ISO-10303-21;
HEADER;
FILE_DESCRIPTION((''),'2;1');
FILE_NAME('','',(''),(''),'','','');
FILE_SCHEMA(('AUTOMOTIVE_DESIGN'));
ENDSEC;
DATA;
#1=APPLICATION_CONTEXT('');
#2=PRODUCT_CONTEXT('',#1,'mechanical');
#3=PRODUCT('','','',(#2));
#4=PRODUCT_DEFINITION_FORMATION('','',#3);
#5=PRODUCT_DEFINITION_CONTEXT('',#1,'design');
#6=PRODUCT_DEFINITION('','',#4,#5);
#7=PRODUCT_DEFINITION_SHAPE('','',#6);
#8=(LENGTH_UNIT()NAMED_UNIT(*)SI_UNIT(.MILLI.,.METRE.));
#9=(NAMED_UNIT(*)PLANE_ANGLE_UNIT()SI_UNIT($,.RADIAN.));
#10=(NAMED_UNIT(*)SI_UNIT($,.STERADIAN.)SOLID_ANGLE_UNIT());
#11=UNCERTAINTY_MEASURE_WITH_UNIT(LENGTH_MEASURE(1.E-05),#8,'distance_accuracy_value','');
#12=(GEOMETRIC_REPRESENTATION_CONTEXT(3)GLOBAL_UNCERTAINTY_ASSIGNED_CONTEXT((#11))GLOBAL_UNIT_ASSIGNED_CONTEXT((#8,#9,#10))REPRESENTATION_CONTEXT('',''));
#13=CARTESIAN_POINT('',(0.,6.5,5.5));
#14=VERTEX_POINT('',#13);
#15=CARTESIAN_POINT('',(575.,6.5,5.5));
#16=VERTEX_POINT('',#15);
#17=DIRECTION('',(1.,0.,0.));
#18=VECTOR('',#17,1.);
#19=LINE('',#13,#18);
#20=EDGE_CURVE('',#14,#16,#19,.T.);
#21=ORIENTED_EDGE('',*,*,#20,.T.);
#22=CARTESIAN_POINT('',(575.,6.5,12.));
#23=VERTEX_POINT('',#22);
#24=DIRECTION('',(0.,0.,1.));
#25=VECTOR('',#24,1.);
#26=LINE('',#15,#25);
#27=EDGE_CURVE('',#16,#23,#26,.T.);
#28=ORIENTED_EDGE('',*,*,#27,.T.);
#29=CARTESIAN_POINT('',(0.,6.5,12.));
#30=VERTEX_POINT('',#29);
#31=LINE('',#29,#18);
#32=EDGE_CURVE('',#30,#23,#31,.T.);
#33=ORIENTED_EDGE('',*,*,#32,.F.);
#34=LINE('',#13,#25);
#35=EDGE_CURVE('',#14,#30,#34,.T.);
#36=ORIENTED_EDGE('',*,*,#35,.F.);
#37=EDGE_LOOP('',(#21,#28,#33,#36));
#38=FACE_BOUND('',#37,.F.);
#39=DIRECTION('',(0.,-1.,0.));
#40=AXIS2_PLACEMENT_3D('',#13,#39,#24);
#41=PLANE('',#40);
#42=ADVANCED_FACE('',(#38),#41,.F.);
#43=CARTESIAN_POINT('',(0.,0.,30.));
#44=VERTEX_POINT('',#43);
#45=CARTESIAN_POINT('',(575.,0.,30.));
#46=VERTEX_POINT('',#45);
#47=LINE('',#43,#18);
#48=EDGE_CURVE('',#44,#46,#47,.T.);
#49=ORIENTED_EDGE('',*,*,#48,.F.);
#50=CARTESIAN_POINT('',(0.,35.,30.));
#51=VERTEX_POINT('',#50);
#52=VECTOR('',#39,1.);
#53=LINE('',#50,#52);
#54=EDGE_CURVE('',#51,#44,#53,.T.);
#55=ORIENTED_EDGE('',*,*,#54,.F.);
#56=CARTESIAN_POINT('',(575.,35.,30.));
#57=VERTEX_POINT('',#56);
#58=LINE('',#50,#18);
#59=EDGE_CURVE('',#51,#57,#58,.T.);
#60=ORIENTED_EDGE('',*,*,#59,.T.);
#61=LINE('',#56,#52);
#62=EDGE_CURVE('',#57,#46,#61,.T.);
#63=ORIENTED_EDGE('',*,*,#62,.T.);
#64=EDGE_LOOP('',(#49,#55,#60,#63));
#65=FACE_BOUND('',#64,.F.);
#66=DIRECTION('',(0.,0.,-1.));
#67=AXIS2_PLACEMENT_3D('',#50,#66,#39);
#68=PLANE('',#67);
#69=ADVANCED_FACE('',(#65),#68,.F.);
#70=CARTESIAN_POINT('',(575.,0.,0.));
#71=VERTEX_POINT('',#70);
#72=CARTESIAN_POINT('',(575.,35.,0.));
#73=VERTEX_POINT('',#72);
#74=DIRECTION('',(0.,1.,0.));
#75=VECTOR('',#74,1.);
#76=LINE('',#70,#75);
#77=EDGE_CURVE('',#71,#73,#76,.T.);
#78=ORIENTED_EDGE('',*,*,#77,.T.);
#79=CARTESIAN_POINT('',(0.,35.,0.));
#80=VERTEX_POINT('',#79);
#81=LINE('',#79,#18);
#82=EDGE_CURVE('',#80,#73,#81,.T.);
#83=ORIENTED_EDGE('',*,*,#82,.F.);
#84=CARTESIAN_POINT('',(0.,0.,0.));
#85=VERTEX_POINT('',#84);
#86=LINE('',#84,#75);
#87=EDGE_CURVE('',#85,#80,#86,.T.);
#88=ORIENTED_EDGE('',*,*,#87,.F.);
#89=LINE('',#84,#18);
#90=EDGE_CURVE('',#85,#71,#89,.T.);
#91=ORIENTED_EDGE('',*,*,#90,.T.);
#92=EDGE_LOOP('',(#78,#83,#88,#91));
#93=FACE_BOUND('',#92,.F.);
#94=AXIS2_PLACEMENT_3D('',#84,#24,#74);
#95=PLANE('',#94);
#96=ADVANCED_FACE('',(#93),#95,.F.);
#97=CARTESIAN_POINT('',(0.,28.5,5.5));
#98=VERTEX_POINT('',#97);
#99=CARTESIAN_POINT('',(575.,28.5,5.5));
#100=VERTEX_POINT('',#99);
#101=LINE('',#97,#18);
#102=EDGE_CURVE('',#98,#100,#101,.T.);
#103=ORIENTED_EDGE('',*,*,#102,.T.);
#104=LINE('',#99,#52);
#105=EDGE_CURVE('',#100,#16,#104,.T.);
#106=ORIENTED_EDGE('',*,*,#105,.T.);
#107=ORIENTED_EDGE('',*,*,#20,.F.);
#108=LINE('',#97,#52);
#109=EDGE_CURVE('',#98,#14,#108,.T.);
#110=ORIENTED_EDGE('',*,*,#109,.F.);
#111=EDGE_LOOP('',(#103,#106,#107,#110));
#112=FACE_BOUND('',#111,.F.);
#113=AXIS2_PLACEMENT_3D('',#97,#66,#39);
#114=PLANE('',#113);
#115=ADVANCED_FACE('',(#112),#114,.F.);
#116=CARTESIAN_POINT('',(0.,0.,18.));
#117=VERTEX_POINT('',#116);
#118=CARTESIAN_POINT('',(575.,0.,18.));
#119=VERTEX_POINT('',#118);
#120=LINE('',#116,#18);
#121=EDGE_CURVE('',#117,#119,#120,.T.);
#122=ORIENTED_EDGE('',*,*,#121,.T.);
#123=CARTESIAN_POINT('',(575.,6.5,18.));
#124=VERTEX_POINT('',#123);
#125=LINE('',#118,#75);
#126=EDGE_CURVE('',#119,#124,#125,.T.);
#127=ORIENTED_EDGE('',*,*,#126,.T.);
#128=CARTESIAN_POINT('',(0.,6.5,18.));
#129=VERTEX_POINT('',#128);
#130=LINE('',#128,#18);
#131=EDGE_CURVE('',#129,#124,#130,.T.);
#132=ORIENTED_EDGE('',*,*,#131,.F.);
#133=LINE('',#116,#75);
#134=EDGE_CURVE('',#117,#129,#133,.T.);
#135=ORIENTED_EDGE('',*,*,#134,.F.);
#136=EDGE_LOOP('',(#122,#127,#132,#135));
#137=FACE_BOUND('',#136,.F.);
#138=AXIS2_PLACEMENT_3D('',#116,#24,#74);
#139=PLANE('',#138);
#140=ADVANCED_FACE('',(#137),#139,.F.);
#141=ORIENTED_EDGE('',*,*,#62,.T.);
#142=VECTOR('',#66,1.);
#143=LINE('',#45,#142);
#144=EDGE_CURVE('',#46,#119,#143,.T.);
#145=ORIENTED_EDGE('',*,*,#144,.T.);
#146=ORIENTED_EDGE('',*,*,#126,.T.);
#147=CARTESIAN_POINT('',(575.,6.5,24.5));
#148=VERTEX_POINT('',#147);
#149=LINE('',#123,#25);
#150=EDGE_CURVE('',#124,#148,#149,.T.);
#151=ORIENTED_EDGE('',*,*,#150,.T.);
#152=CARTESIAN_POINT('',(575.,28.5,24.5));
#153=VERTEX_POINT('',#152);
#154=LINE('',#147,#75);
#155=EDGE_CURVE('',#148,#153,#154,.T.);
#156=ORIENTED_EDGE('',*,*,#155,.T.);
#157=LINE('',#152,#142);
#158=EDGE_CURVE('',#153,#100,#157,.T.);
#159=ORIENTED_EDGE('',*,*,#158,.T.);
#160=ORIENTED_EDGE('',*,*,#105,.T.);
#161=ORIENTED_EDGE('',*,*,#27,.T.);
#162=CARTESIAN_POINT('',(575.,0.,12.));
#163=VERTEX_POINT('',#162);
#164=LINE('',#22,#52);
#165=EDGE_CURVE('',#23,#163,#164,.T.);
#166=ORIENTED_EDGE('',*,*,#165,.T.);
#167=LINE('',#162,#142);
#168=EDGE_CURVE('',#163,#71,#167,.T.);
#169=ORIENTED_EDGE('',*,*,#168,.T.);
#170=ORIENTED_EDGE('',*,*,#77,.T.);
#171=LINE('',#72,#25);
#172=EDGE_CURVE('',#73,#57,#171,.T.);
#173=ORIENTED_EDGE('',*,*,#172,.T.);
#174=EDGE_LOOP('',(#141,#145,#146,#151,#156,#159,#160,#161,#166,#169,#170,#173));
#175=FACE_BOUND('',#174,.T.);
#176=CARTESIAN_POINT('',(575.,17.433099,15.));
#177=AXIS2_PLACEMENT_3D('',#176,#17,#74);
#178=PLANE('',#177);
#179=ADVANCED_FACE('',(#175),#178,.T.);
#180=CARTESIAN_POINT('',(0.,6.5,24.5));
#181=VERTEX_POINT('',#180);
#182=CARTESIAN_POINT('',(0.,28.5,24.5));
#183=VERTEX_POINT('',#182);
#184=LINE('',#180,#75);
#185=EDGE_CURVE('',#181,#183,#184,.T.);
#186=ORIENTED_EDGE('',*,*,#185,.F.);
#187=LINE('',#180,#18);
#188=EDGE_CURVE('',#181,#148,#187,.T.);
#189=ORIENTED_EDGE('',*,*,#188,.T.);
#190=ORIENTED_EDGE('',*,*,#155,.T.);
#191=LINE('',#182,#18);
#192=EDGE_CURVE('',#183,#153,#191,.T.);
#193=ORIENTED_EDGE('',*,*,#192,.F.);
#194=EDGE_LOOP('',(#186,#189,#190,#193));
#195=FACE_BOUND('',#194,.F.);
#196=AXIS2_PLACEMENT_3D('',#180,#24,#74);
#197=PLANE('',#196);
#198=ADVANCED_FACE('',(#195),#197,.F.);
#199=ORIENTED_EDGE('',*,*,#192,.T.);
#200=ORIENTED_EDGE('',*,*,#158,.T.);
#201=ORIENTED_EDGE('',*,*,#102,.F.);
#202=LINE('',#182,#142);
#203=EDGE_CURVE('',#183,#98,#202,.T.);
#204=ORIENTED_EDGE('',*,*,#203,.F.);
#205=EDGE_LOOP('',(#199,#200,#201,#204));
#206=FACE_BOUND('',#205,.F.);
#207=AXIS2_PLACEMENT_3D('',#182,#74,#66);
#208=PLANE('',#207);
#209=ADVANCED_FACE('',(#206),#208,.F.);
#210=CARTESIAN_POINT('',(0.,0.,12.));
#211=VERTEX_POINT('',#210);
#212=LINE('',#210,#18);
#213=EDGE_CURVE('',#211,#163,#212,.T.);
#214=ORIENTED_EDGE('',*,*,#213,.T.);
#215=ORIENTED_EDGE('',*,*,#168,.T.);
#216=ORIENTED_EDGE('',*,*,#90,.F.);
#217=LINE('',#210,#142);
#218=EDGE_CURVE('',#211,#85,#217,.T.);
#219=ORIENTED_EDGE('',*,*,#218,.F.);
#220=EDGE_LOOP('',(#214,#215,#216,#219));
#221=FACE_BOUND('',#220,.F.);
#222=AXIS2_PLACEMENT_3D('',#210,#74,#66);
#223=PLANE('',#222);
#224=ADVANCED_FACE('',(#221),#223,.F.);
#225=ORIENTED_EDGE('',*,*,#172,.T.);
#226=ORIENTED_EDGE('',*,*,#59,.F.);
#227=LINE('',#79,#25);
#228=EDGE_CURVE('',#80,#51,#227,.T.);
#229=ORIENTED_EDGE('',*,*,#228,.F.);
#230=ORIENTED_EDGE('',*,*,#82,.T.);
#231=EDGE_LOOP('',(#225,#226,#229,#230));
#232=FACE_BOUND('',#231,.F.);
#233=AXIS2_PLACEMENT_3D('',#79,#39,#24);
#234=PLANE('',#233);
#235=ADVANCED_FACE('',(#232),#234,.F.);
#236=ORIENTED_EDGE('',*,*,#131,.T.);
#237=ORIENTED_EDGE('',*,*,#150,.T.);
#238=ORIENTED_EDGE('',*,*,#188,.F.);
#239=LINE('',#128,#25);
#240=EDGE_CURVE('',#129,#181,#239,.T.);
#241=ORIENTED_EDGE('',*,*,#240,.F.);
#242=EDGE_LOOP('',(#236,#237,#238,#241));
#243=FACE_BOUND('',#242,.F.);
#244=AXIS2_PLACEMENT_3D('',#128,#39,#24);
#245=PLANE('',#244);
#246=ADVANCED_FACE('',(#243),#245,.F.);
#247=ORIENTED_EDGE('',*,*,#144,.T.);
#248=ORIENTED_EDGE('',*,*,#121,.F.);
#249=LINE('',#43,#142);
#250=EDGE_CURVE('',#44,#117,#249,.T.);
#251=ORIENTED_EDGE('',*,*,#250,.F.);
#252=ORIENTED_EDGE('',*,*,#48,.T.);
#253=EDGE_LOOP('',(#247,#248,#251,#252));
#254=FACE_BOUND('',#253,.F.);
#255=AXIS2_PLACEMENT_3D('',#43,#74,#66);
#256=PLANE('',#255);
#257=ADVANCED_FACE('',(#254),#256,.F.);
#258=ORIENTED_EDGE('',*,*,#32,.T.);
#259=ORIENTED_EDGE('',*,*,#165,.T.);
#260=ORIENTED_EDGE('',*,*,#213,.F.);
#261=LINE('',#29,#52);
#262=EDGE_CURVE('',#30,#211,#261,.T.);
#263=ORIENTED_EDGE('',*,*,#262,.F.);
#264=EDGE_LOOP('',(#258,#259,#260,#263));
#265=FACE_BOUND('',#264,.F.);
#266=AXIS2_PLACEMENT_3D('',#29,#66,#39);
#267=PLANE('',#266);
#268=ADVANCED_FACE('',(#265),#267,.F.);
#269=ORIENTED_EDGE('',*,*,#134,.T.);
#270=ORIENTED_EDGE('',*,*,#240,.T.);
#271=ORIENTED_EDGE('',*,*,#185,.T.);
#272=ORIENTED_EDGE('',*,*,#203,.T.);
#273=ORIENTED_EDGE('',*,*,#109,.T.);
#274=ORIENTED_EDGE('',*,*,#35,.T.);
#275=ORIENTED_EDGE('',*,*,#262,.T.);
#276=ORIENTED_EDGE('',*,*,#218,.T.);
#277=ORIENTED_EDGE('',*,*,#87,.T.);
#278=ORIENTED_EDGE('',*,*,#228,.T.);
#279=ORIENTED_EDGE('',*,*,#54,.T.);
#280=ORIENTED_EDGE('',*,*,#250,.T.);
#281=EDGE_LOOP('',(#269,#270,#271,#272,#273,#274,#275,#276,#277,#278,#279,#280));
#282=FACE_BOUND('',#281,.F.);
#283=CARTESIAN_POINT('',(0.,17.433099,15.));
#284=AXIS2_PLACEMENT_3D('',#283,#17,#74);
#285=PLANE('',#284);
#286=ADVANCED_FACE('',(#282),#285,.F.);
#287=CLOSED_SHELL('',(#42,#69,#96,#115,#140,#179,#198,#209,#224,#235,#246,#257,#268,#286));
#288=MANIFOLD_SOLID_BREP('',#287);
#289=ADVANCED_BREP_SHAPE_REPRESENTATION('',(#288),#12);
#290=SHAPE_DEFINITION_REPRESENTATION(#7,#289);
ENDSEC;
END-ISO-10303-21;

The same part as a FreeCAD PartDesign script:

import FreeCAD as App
import Part
import Sketcher
Q = App.Units.Quantity


def add_polygon(sketch, points):
    """Adds a closed chain of lines whose ends are joined by coincident constraints."""
    first, n = sketch.GeometryCount, len(points)
    for a, b in zip(points, points[1:] + points[:1]):
        sketch.addGeometry(Part.LineSegment(App.Vector(*a, 0), App.Vector(*b, 0)), False)
    for i in range(n):
        sketch.addConstraint(Sketcher.Constraint("Coincident", first + i, 2, first + (i + 1) % n, 1))

doc = App.newDocument("Part")
body = doc.addObject("PartDesign::Body", "Body")

sketch1 = doc.addObject("Sketcher::SketchObject", "Sketch")
body.addObject(sketch1)
sketch1.AttachmentSupport = (doc.YZ_Plane, [""])
sketch1.MapMode = "FlatFace"
add_polygon(sketch1, [(0, 0), (35, 0), (35, 30), (0, 30), (0, 18), (6.5, 18), (6.5, 24.5), (28.5, 24.5), (28.5, 5.5), (6.5, 5.5), (6.5, 12), (0, 12)])
sketch1.addConstraint(Sketcher.Constraint("Horizontal", 0))
sketch1.addConstraint(Sketcher.Constraint("Vertical", 1))
sketch1.addConstraint(Sketcher.Constraint("Horizontal", 2))
sketch1.addConstraint(Sketcher.Constraint("Vertical", 3))
sketch1.addConstraint(Sketcher.Constraint("Horizontal", 4))
sketch1.addConstraint(Sketcher.Constraint("Vertical", 5))
sketch1.addConstraint(Sketcher.Constraint("Horizontal", 6))
sketch1.addConstraint(Sketcher.Constraint("Vertical", 7))
sketch1.addConstraint(Sketcher.Constraint("Horizontal", 8))
sketch1.addConstraint(Sketcher.Constraint("Vertical", 9))
sketch1.addConstraint(Sketcher.Constraint("Horizontal", 10))
sketch1.addConstraint(Sketcher.Constraint("Vertical", 11))
sketch1.addConstraint(Sketcher.Constraint("Coincident", 11, 2, -1, 1))
sketch1.addConstraint(Sketcher.Constraint("PointOnObject", 2, 2, -2))
sketch1.addConstraint(Sketcher.Constraint("Vertical", 5, 2, 8, 2))
sketch1.addConstraint(Sketcher.Constraint("Equal", 10, 5))
sketch1.addConstraint(Sketcher.Constraint("Equal", 5, 9))
sketch1.addConstraint(Sketcher.Constraint("Equal", 3, 11))
sketch1.addConstraint(Sketcher.Constraint("DistanceX", 0, 1, 0, 2, Q("35 mm")))
sketch1.addConstraint(Sketcher.Constraint("DistanceX", 6, 1, 6, 2, Q("22 mm")))
sketch1.addConstraint(Sketcher.Constraint("DistanceY", 1, 1, 1, 2, Q("30 mm")))
sketch1.addConstraint(Sketcher.Constraint("DistanceY", 3, 2, 3, 1, Q("12 mm")))
sketch1.addConstraint(Sketcher.Constraint("DistanceY", 7, 2, 7, 1, Q("19 mm")))
pad1 = doc.addObject("PartDesign::Pad", "Pad")
body.addObject(pad1)
pad1.Profile = sketch1
pad1.Length = 575

doc.recompute()
